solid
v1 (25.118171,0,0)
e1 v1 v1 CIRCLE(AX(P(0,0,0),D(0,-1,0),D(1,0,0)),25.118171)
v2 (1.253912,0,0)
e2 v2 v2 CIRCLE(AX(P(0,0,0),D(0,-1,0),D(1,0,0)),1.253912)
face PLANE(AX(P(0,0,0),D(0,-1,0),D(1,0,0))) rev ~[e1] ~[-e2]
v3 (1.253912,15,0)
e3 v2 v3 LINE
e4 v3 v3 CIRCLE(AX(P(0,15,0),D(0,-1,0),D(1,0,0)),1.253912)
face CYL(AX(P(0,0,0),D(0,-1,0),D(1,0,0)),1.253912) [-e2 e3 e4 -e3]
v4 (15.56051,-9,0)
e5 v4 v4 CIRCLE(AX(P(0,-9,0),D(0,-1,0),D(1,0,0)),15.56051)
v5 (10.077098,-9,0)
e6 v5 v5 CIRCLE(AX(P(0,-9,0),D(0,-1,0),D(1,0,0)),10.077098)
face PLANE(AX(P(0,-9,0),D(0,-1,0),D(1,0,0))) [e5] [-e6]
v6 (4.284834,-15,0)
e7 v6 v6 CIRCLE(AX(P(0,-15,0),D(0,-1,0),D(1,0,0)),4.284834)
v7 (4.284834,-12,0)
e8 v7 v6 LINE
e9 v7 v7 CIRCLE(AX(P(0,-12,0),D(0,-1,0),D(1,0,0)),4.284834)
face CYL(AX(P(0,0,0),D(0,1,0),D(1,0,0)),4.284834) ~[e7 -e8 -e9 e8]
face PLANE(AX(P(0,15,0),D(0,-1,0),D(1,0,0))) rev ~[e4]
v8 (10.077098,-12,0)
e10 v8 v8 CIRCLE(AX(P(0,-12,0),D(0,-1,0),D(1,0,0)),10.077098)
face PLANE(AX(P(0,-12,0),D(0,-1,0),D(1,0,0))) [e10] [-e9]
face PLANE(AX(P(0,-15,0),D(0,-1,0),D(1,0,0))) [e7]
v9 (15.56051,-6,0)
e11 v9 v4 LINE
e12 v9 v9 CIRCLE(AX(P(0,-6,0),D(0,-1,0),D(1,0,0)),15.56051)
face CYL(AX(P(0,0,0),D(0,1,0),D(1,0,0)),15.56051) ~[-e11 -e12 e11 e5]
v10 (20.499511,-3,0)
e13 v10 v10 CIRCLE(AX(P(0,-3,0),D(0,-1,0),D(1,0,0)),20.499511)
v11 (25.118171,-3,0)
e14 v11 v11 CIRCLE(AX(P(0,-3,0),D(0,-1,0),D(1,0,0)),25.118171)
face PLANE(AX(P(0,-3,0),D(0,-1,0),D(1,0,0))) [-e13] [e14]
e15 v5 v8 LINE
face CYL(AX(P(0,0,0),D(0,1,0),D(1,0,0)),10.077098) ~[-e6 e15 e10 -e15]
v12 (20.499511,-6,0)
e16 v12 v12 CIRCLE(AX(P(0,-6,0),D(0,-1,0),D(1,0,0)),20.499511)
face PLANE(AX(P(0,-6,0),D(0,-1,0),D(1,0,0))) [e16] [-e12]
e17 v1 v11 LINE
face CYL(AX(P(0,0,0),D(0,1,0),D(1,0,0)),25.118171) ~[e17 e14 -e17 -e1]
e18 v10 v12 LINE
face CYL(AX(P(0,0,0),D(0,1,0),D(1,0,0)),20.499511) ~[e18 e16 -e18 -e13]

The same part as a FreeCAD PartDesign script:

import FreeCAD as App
import Part
import Sketcher

V = App.Vector
Q = App.Units.Quantity

doc = App.newDocument("Part")
body = doc.addObject("PartDesign::Body", "Body")

# Sketch on XZ plane
sketch1 = doc.addObject("Sketcher::SketchObject", "Sketch")
body.addObject(sketch1)
sketch1.AttachmentSupport = (doc.XZ_Plane, [""])
sketch1.MapMode = "FlatFace"
sketch1.addGeometry([
    Part.Circle(V(0, 0, 0), V(0, 0, 1), 25),
    Part.Circle(V(0, 0, 0), V(0, 0, 1), 20),
], False)
sketch1.addConstraint([
    Sketcher.Constraint("Coincident", 0, 3, -1, 1),
    Sketcher.Constraint("Coincident", 1, 3, -1, 1),
    Sketcher.Constraint("Diameter", 1, Q("40.999022 mm")),
    Sketcher.Constraint("Diameter", 0, Q("50.236342 mm")),
])
pad1 = doc.addObject("PartDesign::Pad", "Pad")
body.addObject(pad1)
pad1.Profile = sketch1
pad1.Length = 3

# Sketch on XZ plane
sketch2 = doc.addObject("Sketcher::SketchObject", "Sketch001")
body.addObject(sketch2)
sketch2.AttachmentSupport = (doc.XZ_Plane, [""])
sketch2.MapMode = "FlatFace"
sketch2.addGeometry([
    Part.Circle(V(0, 0, 0), V(0, 0, 1), 20),
    Part.Circle(V(0, 0, 0), V(0, 0, 1), 16),
], False)
sketch2.addConstraint([
    Sketcher.Constraint("Coincident", 0, 3, -1, 1),
    Sketcher.Constraint("Coincident", 1, 3, -1, 1),
    Sketcher.Constraint("Diameter", 0, Q("40.999022 mm")),
    Sketcher.Constraint("Diameter", 1, Q("31.12102 mm")),
])
pad2 = doc.addObject("PartDesign::Pad", "Pad001")
body.addObject(pad2)
pad2.Profile = sketch2
pad2.Length = 6

# Sketch on XZ plane
sketch3 = doc.addObject("Sketcher::SketchObject", "Sketch002")
body.addObject(sketch3)
sketch3.AttachmentSupport = (doc.XZ_Plane, [""])
sketch3.MapMode = "FlatFace"
sketch3.addGeometry([
    Part.Circle(V(0, 0, 0), V(0, 0, 1), 16),
    Part.Circle(V(0, 0, 0), V(0, 0, 1), 10),
], False)
sketch3.addConstraint([
    Sketcher.Constraint("Coincident", 0, 3, -1, 1),
    Sketcher.Constraint("Coincident", 1, 3, -1, 1),
    Sketcher.Constraint("Diameter", 0, Q("31.12102 mm")),
    Sketcher.Constraint("Diameter", 1, Q("20.154196 mm")),
])
pad3 = doc.addObject("PartDesign::Pad", "Pad002")
body.addObject(pad3)
pad3.Profile = sketch3
pad3.Length = 9

# Sketch on XZ plane
sketch4 = doc.addObject("Sketcher::SketchObject", "Sketch003")
body.addObject(sketch4)
sketch4.AttachmentSupport = (doc.XZ_Plane, [""])
sketch4.MapMode = "FlatFace"
sketch4.addGeometry([
    Part.Circle(V(0, 0, 0), V(0, 0, 1), 10.1),
    Part.Circle(V(0, 0, 0), V(0, 0, 1), 4.3),
], False)
sketch4.addConstraint([
    Sketcher.Constraint("Coincident", 0, 3, -1, 1),
    Sketcher.Constraint("Coincident", 1, 3, -1, 1),
    Sketcher.Constraint("Diameter", 0, Q("20.154196 mm")),
    Sketcher.Constraint("Diameter", 1, Q("8.569668 mm")),
])
pad4 = doc.addObject("PartDesign::Pad", "Pad003")
body.addObject(pad4)
pad4.Profile = sketch4
pad4.Length = 12

# Sketch on XZ plane
sketch5 = doc.addObject("Sketcher::SketchObject", "Sketch004")
body.addObject(sketch5)
sketch5.AttachmentSupport = (doc.XZ_Plane, [""])
sketch5.MapMode = "FlatFace"
sketch5.addGeometry([
    Part.Circle(V(0, 0, 0), V(0, 0, 1), 4.3),
    Part.Circle(V(0, 0, 0), V(0, 0, 1), 1.3),
], False)
sketch5.addConstraint([
    Sketcher.Constraint("Coincident", 0, 3, -1, 1),
    Sketcher.Constraint("Coincident", 1, 3, -1, 1),
    Sketcher.Constraint("Diameter", 0, Q("8.569668 mm")),
    Sketcher.Constraint("Diameter", 1, Q("2.507824 mm")),
])
pad5 = doc.addObject("PartDesign::Pad", "Pad004")
body.addObject(pad5)
pad5.Profile = sketch5
pad5.Length = 15

# Sketch on XZ plane
sketch6 = doc.addObject("Sketcher::SketchObject", "Sketch005")
body.addObject(sketch6)
sketch6.AttachmentSupport = (doc.XZ_Plane, [""])
sketch6.MapMode = "FlatFace"
sketch6.addGeometry(Part.Circle(V(0, 0, 0), V(0, 0, 1), 1.3), False)
sketch6.addConstraint([
    Sketcher.Constraint("Coincident", 0, 3, -1, 1),
    Sketcher.Constraint("Diameter", 0, Q("2.507824 mm")),
])
pad6 = doc.addObject("PartDesign::Pad", "Pad005")
body.addObject(pad6)
pad6.Profile = sketch6
pad6.Length = 15

# Sketch on XZ plane
sketch7 = doc.addObject("Sketcher::SketchObject", "Sketch006")
body.addObject(sketch7)
sketch7.AttachmentSupport = (doc.XZ_Plane, [""])
sketch7.MapMode = "FlatFace"
sketch7.addGeometry(Part.Circle(V(0, 0, 0), V(0, 0, 1), 1.3), False)
sketch7.addConstraint([
    Sketcher.Constraint("Coincident", 0, 3, -1, 1),
    Sketcher.Constraint("Diameter", 0, Q("2.507824 mm")),
])
pad7 = doc.addObject("PartDesign::Pad", "Pad006")
body.addObject(pad7)
pad7.Profile = sketch7
pad7.Length = 15
pad7.Reversed = True

doc.recompute()
